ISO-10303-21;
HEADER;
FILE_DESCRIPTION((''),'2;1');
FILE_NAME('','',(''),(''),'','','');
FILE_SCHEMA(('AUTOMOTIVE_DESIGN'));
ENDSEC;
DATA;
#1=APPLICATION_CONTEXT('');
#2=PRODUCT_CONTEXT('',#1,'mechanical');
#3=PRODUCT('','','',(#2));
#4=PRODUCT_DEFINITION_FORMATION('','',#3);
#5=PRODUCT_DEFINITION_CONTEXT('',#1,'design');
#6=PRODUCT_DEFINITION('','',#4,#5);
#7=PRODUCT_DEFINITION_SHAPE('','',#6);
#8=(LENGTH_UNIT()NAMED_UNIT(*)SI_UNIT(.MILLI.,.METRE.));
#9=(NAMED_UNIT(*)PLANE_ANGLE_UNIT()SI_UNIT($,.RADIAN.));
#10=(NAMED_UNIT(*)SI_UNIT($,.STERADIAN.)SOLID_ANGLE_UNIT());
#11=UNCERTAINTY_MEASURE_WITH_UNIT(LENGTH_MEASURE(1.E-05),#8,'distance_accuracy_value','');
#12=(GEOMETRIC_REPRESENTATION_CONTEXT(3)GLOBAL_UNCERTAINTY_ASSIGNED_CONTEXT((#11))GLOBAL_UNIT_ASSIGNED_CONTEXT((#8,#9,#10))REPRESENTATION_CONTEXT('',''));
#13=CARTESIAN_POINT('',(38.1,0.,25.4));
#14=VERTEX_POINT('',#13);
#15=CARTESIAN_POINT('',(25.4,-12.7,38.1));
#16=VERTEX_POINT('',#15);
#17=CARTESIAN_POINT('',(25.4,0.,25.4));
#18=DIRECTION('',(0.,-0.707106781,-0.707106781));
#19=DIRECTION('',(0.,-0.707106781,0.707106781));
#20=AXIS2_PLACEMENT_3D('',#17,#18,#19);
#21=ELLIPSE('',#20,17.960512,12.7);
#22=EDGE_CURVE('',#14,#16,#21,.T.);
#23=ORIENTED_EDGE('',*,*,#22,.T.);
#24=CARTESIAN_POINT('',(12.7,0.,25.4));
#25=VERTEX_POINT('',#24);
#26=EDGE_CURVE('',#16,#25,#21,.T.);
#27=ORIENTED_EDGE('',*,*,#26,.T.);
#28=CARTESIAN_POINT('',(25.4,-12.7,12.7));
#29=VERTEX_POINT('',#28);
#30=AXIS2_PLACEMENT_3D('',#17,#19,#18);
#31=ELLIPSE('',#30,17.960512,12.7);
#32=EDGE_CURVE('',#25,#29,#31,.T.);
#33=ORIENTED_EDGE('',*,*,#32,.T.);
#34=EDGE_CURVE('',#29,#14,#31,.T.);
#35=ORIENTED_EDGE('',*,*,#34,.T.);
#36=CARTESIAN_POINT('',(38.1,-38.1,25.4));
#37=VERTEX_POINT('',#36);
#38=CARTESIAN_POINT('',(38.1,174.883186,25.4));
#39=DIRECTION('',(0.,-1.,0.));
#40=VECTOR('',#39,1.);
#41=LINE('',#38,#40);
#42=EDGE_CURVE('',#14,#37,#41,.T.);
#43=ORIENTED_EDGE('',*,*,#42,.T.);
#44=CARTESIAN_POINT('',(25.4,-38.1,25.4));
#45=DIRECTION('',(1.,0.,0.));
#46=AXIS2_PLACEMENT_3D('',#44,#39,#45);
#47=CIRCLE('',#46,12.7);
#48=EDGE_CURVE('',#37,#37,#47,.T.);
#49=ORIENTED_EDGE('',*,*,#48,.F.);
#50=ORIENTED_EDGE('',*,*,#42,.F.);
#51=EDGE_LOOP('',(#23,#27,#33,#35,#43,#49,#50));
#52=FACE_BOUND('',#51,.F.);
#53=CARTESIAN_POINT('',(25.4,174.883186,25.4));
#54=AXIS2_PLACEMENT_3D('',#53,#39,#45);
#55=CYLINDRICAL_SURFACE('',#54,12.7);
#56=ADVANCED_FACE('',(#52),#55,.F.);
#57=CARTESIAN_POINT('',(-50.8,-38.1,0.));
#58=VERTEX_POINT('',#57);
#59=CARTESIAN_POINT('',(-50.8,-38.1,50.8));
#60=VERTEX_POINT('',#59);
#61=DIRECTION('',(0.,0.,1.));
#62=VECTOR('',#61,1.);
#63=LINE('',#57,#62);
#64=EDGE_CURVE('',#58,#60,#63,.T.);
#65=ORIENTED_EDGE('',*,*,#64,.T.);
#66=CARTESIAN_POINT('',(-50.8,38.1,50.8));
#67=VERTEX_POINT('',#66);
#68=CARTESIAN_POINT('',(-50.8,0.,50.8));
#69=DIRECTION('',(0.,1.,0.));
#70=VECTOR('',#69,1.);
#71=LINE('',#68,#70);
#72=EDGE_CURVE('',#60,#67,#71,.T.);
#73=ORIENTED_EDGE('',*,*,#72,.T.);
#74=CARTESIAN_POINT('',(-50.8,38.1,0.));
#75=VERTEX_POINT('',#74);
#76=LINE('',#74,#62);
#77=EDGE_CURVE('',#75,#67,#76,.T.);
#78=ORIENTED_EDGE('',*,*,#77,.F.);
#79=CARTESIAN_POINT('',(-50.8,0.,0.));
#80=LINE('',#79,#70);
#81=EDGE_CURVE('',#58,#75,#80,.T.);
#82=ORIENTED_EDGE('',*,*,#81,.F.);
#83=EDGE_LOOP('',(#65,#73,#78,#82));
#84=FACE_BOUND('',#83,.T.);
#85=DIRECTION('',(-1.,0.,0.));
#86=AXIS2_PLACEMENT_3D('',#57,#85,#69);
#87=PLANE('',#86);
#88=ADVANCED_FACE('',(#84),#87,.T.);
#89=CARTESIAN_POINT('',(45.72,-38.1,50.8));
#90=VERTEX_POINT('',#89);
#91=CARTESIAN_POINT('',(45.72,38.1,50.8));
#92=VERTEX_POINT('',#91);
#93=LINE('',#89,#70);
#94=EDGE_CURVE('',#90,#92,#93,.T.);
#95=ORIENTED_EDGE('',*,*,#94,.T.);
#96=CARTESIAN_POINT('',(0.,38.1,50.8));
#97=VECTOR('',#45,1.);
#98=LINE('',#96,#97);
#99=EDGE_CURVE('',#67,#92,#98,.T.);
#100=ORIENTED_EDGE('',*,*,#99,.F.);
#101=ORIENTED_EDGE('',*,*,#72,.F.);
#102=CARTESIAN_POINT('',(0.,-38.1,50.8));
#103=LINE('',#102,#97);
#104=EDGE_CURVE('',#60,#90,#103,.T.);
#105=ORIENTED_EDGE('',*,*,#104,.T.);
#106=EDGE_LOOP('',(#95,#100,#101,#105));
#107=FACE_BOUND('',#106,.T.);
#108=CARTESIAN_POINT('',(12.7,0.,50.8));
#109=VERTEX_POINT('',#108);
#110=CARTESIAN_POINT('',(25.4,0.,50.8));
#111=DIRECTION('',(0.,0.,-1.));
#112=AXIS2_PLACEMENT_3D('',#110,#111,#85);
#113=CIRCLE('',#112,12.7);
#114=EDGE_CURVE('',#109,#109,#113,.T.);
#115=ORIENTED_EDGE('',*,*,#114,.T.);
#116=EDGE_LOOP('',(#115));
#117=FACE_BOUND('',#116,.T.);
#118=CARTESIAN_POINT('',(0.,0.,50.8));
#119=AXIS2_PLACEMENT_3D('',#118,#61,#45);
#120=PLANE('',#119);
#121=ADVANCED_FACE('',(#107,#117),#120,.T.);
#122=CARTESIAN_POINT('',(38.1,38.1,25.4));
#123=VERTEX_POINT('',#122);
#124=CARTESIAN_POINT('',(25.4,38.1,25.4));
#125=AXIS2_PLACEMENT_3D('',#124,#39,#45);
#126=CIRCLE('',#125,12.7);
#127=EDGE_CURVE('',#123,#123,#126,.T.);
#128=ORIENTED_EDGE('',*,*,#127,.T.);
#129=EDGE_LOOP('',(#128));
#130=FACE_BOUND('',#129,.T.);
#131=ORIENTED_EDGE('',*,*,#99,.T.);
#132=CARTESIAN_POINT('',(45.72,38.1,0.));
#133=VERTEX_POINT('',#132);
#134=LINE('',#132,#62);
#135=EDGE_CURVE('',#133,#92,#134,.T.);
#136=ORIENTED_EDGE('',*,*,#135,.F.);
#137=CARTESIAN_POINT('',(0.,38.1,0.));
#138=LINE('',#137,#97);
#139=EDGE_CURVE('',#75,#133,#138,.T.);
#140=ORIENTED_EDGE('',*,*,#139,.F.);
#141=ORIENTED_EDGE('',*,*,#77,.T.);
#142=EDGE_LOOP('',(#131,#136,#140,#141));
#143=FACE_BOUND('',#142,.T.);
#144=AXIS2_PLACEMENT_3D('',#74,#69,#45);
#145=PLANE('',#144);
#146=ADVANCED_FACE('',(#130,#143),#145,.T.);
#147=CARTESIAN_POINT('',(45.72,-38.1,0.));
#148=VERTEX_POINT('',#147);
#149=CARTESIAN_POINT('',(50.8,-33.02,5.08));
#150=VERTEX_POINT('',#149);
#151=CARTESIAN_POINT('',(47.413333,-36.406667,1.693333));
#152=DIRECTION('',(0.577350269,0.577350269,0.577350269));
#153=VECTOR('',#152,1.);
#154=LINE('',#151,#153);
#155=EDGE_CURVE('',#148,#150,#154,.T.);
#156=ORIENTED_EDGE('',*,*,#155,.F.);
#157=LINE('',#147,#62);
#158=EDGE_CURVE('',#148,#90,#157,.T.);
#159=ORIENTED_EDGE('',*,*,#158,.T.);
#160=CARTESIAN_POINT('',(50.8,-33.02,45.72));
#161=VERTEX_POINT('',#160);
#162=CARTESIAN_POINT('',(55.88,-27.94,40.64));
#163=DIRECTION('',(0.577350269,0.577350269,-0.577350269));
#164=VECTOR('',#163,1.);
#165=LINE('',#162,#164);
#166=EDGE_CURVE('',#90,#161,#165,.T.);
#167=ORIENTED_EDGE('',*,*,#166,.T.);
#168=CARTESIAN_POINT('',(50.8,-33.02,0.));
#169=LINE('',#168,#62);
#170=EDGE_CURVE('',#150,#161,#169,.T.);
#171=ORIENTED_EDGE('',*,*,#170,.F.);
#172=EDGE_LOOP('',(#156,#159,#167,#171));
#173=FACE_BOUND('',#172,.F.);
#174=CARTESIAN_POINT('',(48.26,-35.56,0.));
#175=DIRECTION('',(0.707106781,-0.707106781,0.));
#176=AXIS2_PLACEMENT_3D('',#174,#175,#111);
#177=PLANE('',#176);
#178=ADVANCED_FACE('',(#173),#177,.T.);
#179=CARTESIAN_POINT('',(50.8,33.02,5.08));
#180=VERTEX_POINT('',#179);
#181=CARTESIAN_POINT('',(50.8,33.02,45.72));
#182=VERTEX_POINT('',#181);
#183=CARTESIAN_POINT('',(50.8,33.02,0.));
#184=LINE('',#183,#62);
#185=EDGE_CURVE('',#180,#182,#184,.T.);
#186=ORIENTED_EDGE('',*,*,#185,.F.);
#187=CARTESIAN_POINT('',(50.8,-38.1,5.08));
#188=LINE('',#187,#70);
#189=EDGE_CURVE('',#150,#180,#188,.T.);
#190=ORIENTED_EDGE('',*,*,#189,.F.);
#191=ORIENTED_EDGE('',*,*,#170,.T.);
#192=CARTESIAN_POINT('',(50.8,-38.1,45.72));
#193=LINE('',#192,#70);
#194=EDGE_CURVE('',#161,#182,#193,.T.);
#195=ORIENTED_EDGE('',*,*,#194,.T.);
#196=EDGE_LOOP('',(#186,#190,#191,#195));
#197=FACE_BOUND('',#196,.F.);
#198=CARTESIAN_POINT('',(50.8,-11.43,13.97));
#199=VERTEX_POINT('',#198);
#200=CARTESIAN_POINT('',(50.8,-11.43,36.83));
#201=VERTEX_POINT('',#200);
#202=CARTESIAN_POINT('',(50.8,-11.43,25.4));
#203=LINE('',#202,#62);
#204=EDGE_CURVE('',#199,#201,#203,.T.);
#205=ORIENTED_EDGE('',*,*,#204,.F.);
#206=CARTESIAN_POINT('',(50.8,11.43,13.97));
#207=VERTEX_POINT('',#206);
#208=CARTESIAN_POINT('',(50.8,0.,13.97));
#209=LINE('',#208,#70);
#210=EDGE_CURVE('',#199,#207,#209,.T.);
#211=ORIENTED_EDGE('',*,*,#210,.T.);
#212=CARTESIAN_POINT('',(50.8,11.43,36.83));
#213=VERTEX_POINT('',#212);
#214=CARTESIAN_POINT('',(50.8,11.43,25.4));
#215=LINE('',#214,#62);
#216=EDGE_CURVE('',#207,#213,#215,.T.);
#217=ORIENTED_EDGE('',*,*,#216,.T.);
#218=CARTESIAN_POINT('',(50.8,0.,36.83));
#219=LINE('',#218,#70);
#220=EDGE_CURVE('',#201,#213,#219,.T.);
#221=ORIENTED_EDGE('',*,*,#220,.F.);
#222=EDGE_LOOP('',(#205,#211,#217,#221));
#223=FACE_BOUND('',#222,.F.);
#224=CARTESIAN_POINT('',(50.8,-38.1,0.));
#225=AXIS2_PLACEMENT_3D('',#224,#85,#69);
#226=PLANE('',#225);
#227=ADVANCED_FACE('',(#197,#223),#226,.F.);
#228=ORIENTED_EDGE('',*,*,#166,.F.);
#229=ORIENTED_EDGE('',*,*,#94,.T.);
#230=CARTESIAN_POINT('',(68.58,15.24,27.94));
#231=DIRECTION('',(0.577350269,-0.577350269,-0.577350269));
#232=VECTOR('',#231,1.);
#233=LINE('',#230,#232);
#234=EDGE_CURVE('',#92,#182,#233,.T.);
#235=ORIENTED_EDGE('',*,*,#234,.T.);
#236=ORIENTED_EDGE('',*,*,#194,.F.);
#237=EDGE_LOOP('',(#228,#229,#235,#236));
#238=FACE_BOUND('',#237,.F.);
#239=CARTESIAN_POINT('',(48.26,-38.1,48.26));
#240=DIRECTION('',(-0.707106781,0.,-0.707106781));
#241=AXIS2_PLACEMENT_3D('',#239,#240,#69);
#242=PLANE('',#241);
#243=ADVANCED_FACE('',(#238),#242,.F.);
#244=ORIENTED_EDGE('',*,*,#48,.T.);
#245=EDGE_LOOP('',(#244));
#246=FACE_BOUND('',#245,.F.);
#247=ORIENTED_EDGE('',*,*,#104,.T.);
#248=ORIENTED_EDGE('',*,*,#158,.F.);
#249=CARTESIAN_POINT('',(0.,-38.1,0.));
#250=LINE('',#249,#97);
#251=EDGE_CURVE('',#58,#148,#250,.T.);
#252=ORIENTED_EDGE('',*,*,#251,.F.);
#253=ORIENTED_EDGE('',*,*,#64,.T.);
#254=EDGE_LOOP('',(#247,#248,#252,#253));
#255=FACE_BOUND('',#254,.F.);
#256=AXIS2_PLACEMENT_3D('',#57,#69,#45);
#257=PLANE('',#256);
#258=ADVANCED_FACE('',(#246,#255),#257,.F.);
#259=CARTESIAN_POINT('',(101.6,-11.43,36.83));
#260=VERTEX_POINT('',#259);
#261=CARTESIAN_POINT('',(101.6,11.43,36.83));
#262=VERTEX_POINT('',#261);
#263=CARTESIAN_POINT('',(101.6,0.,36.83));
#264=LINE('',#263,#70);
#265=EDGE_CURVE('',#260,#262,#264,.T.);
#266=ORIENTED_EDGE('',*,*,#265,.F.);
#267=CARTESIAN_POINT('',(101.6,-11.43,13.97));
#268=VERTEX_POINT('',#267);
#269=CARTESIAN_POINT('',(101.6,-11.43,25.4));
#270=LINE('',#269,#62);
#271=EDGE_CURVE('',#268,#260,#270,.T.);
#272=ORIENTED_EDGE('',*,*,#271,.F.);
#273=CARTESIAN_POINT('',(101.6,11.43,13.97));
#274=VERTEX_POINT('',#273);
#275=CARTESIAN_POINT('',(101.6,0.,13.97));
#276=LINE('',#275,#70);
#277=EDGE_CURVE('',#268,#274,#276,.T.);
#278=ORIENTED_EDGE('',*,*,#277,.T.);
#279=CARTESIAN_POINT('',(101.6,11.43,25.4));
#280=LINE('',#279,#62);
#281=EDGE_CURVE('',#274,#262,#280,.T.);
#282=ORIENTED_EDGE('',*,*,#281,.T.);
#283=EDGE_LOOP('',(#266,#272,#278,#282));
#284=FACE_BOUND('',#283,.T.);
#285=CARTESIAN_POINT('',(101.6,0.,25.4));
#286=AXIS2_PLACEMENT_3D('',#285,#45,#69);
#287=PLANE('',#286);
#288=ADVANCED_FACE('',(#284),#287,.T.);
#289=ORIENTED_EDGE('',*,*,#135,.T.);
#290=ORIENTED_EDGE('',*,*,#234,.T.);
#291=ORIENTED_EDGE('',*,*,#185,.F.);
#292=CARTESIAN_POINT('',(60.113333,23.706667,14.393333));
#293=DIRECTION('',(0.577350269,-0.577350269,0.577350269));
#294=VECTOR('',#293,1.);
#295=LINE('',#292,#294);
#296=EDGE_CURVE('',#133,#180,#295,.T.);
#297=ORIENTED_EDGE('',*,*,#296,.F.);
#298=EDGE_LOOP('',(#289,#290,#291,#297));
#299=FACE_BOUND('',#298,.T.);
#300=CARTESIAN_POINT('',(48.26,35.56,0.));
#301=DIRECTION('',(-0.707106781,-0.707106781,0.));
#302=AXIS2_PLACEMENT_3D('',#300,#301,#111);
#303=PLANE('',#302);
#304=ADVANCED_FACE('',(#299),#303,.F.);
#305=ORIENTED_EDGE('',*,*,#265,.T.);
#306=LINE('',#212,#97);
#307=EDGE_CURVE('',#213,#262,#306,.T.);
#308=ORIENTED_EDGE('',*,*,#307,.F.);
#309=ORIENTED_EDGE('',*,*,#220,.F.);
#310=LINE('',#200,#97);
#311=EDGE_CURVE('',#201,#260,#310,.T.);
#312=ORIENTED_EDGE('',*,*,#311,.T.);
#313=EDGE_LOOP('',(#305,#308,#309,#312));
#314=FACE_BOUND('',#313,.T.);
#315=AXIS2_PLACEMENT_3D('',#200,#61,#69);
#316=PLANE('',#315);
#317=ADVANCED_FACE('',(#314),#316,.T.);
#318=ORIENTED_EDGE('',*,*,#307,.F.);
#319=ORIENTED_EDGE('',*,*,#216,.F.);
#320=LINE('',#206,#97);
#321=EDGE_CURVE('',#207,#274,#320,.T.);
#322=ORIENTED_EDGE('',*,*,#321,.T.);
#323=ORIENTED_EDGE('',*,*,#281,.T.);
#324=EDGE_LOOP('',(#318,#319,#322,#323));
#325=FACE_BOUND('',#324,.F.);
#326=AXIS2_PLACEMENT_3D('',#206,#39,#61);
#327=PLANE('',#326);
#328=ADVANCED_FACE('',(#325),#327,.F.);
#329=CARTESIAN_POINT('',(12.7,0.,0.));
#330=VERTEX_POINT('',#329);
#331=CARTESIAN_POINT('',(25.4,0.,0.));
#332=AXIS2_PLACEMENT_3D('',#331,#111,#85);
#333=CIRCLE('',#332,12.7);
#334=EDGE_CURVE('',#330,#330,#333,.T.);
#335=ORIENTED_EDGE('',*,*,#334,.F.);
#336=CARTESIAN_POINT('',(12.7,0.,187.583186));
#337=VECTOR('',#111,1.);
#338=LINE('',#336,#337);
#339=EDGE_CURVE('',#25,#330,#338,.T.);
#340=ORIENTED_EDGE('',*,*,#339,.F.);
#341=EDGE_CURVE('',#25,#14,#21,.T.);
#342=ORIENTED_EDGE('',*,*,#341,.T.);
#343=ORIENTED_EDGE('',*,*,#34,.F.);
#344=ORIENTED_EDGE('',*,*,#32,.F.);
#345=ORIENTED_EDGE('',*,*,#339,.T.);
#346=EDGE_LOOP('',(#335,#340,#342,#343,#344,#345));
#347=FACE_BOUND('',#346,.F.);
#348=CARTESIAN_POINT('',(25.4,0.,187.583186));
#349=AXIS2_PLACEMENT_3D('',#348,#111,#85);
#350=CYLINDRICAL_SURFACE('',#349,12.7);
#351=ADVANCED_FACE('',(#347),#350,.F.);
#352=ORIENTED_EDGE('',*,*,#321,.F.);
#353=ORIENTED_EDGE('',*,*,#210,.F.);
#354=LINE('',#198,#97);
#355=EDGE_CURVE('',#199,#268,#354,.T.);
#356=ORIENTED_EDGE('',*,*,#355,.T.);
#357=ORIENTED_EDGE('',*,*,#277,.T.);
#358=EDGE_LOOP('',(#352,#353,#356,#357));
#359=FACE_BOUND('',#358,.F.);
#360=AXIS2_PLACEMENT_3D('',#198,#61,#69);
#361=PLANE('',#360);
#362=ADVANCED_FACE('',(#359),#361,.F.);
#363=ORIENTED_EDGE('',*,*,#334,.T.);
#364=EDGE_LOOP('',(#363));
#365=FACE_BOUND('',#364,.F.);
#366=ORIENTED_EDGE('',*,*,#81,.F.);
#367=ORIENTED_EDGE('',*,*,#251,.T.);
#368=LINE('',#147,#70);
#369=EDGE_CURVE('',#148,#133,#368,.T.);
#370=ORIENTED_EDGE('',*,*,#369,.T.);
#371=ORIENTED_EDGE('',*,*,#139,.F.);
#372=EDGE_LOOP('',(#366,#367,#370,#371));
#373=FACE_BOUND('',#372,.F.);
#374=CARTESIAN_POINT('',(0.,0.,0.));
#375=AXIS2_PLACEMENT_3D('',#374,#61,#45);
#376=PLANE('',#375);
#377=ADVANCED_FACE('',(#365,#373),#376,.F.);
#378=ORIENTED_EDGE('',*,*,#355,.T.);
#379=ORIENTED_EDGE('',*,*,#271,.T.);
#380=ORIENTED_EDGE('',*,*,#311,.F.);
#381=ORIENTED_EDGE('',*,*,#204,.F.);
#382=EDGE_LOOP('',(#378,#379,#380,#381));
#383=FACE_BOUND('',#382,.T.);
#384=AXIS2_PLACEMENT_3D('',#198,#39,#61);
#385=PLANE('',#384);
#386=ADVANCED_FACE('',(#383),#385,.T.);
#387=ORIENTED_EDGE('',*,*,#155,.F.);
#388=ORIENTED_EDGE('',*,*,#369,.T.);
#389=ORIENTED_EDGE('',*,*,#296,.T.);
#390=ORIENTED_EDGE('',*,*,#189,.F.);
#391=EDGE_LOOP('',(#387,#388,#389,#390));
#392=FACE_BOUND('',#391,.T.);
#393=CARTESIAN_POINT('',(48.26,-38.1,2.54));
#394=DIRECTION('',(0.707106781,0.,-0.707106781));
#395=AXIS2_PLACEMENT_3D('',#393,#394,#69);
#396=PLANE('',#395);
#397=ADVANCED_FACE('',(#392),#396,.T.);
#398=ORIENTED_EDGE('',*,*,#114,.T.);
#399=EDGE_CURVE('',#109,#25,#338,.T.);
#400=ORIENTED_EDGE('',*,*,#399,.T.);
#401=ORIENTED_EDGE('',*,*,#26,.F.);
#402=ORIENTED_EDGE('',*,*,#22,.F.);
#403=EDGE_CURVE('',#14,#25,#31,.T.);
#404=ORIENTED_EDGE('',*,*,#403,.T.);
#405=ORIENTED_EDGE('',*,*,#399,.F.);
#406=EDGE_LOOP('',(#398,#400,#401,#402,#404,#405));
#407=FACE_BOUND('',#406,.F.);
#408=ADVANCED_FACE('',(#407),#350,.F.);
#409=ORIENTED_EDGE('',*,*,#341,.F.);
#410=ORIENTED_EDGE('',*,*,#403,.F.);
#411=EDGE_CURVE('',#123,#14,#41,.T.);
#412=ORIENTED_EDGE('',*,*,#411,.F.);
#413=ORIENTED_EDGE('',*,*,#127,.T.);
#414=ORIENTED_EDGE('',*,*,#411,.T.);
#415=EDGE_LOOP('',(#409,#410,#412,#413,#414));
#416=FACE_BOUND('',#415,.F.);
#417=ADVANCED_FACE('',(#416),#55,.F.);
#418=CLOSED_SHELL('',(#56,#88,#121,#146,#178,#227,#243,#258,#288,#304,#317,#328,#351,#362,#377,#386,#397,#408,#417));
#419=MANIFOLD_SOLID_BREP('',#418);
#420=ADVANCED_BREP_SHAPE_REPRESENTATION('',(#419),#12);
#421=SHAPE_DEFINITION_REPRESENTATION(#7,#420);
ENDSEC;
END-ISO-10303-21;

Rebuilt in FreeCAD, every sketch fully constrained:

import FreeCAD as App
import Part
import Sketcher
Q = App.Units.Quantity


def edges_at(feature, points):
    """Names of the edges that pass closest to the given points."""
    edges = feature.Shape.Edges
    near = lambda p: min(range(len(edges)), key=lambda i: edges[i].distToShape(Part.Vertex(*p))[0])
    return sorted({f"Edge{near(p) + 1}" for p in points})


def add_polygon(sketch, points):
    """Adds a closed chain of lines whose ends are joined by coincident constraints."""
    first, n = sketch.GeometryCount, len(points)
    for a, b in zip(points, points[1:] + points[:1]):
        sketch.addGeometry(Part.LineSegment(App.Vector(*a, 0), App.Vector(*b, 0)), False)
    for i in range(n):
        sketch.addConstraint(Sketcher.Constraint("Coincident", first + i, 2, first + (i + 1) % n, 1))

doc = App.newDocument("Part")
body = doc.addObject("PartDesign::Body", "Body")

# Sketch on XY plane
sketch1 = body.newObject("Sketcher::SketchObject", "Sketch")
sketch1.AttachmentSupport = (doc.getObject("XY_Plane"), [""])
sketch1.MapMode = "FlatFace"
add_polygon(sketch1, [(-51, 38), (-51, -38), (51, -38), (51, 38)])  # lines 0-3
sketch1.addConstraint(Sketcher.Constraint("Vertical", 0))
sketch1.addConstraint(Sketcher.Constraint("Horizontal", 1))
sketch1.addConstraint(Sketcher.Constraint("Vertical", 2))
sketch1.addConstraint(Sketcher.Constraint("Horizontal", 3))
sketch1.addConstraint(Sketcher.Constraint("Symmetric", 0, 2, 2, 2, -1, 1))
sketch1.addConstraint(Sketcher.Constraint("DistanceX", 1, 1, 1, 2, Q("4 in")))
sketch1.addConstraint(Sketcher.Constraint("DistanceY", 0, 2, 0, 1, Q("3 in")))
pad1 = body.newObject("PartDesign::Pad", "Pad")
pad1.Profile = sketch1
pad1.Length = Q("2 in")

# Sketch on XZ plane
sketch2 = body.newObject("Sketcher::SketchObject", "Sketch001")
sketch2.AttachmentSupport = (doc.getObject("XZ_Plane"), [""])
sketch2.MapMode = "FlatFace"
sketch2.AttachmentOffset = App.Placement(App.Vector(0, 0, -1.5 * 25.4), App.Rotation())
sketch2.addGeometry(Part.Circle(App.Vector(25, 25, 0), App.Vector(0, 0, 1), 13), False)
sketch2.addConstraint(Sketcher.Constraint("Diameter", 0, Q("1 in")))
sketch2.addConstraint(Sketcher.Constraint("DistanceX", -1, 1, 0, 3, Q("1 in")))
sketch2.addConstraint(Sketcher.Constraint("DistanceY", -1, 1, 0, 3, Q("1 in")))
doc.recompute()
hole = body.newObject("PartDesign::Hole", "Hole")
hole.Profile = sketch2
hole.ThreadType = "None"
hole.Diameter = Q("1 in")
hole.DepthType = "ThroughAll"
hole.Reversed = True

# Sketch on XY plane
sketch3 = body.newObject("Sketcher::SketchObject", "Sketch002")
sketch3.AttachmentSupport = (doc.getObject("XY_Plane"), [""])
sketch3.MapMode = "FlatFace"
sketch3.AttachmentOffset = App.Placement(App.Vector(0, 0, 2 * 25.4), App.Rotation())
sketch3.addGeometry(Part.Circle(App.Vector(25, 0, 0), App.Vector(0, 0, 1), 13), False)
sketch3.addConstraint(Sketcher.Constraint("PointOnObject", 0, 3, -1))
sketch3.addConstraint(Sketcher.Constraint("Diameter", 0, Q("1 in")))
sketch3.addConstraint(Sketcher.Constraint("DistanceX", -1, 1, 0, 3, Q("1 in")))
doc.recompute()
hole2 = body.newObject("PartDesign::Hole", "Hole001")
hole2.Profile = sketch3
hole2.ThreadType = "None"
hole2.Diameter = Q("1 in")
hole2.DepthType = "ThroughAll"

# Sketch on YZ plane
sketch4 = body.newObject("Sketcher::SketchObject", "Sketch003")
sketch4.AttachmentSupport = (doc.getObject("YZ_Plane"), [""])
sketch4.MapMode = "FlatFace"
sketch4.AttachmentOffset = App.Placement(App.Vector(0, 0, 2 * 25.4), App.Rotation())
add_polygon(sketch4, [(-11, 37), (-11, 14), (11, 14), (11, 37)])  # lines 0-3
sketch4.addConstraint(Sketcher.Constraint("Vertical", 0))
sketch4.addConstraint(Sketcher.Constraint("Horizontal", 1))
sketch4.addConstraint(Sketcher.Constraint("Vertical", 2))
sketch4.addConstraint(Sketcher.Constraint("Horizontal", 3))
sketch4.addConstraint(Sketcher.Constraint("Equal", 3, 0))
sketch4.addConstraint(Sketcher.Constraint("DistanceX", 1, 1, 1, 2, Q("0.9 in")))
sketch4.addConstraint(Sketcher.Constraint("DistanceX", 0, 2, -1, 1, Q("0.45 in")))
sketch4.addConstraint(Sketcher.Constraint("DistanceY", -1, 1, 0, 2, Q("0.55 in")))
pad2 = body.newObject("PartDesign::Pad", "Pad001")
pad2.Profile = sketch4
pad2.Length = Q("2 in")
doc.recompute()

chamfer = body.newObject("PartDesign::Chamfer", "Chamfer")
chamfer.Base = (pad2, edges_at(pad2, [
    (50.8, 0, 50.8),
    (50.8, -38.1, 25.4),
    (50.8, 0, 0),
    (50.8, 38.1, 25.4),
]))
chamfer.Size = Q("0.2 in")

doc.recompute()
